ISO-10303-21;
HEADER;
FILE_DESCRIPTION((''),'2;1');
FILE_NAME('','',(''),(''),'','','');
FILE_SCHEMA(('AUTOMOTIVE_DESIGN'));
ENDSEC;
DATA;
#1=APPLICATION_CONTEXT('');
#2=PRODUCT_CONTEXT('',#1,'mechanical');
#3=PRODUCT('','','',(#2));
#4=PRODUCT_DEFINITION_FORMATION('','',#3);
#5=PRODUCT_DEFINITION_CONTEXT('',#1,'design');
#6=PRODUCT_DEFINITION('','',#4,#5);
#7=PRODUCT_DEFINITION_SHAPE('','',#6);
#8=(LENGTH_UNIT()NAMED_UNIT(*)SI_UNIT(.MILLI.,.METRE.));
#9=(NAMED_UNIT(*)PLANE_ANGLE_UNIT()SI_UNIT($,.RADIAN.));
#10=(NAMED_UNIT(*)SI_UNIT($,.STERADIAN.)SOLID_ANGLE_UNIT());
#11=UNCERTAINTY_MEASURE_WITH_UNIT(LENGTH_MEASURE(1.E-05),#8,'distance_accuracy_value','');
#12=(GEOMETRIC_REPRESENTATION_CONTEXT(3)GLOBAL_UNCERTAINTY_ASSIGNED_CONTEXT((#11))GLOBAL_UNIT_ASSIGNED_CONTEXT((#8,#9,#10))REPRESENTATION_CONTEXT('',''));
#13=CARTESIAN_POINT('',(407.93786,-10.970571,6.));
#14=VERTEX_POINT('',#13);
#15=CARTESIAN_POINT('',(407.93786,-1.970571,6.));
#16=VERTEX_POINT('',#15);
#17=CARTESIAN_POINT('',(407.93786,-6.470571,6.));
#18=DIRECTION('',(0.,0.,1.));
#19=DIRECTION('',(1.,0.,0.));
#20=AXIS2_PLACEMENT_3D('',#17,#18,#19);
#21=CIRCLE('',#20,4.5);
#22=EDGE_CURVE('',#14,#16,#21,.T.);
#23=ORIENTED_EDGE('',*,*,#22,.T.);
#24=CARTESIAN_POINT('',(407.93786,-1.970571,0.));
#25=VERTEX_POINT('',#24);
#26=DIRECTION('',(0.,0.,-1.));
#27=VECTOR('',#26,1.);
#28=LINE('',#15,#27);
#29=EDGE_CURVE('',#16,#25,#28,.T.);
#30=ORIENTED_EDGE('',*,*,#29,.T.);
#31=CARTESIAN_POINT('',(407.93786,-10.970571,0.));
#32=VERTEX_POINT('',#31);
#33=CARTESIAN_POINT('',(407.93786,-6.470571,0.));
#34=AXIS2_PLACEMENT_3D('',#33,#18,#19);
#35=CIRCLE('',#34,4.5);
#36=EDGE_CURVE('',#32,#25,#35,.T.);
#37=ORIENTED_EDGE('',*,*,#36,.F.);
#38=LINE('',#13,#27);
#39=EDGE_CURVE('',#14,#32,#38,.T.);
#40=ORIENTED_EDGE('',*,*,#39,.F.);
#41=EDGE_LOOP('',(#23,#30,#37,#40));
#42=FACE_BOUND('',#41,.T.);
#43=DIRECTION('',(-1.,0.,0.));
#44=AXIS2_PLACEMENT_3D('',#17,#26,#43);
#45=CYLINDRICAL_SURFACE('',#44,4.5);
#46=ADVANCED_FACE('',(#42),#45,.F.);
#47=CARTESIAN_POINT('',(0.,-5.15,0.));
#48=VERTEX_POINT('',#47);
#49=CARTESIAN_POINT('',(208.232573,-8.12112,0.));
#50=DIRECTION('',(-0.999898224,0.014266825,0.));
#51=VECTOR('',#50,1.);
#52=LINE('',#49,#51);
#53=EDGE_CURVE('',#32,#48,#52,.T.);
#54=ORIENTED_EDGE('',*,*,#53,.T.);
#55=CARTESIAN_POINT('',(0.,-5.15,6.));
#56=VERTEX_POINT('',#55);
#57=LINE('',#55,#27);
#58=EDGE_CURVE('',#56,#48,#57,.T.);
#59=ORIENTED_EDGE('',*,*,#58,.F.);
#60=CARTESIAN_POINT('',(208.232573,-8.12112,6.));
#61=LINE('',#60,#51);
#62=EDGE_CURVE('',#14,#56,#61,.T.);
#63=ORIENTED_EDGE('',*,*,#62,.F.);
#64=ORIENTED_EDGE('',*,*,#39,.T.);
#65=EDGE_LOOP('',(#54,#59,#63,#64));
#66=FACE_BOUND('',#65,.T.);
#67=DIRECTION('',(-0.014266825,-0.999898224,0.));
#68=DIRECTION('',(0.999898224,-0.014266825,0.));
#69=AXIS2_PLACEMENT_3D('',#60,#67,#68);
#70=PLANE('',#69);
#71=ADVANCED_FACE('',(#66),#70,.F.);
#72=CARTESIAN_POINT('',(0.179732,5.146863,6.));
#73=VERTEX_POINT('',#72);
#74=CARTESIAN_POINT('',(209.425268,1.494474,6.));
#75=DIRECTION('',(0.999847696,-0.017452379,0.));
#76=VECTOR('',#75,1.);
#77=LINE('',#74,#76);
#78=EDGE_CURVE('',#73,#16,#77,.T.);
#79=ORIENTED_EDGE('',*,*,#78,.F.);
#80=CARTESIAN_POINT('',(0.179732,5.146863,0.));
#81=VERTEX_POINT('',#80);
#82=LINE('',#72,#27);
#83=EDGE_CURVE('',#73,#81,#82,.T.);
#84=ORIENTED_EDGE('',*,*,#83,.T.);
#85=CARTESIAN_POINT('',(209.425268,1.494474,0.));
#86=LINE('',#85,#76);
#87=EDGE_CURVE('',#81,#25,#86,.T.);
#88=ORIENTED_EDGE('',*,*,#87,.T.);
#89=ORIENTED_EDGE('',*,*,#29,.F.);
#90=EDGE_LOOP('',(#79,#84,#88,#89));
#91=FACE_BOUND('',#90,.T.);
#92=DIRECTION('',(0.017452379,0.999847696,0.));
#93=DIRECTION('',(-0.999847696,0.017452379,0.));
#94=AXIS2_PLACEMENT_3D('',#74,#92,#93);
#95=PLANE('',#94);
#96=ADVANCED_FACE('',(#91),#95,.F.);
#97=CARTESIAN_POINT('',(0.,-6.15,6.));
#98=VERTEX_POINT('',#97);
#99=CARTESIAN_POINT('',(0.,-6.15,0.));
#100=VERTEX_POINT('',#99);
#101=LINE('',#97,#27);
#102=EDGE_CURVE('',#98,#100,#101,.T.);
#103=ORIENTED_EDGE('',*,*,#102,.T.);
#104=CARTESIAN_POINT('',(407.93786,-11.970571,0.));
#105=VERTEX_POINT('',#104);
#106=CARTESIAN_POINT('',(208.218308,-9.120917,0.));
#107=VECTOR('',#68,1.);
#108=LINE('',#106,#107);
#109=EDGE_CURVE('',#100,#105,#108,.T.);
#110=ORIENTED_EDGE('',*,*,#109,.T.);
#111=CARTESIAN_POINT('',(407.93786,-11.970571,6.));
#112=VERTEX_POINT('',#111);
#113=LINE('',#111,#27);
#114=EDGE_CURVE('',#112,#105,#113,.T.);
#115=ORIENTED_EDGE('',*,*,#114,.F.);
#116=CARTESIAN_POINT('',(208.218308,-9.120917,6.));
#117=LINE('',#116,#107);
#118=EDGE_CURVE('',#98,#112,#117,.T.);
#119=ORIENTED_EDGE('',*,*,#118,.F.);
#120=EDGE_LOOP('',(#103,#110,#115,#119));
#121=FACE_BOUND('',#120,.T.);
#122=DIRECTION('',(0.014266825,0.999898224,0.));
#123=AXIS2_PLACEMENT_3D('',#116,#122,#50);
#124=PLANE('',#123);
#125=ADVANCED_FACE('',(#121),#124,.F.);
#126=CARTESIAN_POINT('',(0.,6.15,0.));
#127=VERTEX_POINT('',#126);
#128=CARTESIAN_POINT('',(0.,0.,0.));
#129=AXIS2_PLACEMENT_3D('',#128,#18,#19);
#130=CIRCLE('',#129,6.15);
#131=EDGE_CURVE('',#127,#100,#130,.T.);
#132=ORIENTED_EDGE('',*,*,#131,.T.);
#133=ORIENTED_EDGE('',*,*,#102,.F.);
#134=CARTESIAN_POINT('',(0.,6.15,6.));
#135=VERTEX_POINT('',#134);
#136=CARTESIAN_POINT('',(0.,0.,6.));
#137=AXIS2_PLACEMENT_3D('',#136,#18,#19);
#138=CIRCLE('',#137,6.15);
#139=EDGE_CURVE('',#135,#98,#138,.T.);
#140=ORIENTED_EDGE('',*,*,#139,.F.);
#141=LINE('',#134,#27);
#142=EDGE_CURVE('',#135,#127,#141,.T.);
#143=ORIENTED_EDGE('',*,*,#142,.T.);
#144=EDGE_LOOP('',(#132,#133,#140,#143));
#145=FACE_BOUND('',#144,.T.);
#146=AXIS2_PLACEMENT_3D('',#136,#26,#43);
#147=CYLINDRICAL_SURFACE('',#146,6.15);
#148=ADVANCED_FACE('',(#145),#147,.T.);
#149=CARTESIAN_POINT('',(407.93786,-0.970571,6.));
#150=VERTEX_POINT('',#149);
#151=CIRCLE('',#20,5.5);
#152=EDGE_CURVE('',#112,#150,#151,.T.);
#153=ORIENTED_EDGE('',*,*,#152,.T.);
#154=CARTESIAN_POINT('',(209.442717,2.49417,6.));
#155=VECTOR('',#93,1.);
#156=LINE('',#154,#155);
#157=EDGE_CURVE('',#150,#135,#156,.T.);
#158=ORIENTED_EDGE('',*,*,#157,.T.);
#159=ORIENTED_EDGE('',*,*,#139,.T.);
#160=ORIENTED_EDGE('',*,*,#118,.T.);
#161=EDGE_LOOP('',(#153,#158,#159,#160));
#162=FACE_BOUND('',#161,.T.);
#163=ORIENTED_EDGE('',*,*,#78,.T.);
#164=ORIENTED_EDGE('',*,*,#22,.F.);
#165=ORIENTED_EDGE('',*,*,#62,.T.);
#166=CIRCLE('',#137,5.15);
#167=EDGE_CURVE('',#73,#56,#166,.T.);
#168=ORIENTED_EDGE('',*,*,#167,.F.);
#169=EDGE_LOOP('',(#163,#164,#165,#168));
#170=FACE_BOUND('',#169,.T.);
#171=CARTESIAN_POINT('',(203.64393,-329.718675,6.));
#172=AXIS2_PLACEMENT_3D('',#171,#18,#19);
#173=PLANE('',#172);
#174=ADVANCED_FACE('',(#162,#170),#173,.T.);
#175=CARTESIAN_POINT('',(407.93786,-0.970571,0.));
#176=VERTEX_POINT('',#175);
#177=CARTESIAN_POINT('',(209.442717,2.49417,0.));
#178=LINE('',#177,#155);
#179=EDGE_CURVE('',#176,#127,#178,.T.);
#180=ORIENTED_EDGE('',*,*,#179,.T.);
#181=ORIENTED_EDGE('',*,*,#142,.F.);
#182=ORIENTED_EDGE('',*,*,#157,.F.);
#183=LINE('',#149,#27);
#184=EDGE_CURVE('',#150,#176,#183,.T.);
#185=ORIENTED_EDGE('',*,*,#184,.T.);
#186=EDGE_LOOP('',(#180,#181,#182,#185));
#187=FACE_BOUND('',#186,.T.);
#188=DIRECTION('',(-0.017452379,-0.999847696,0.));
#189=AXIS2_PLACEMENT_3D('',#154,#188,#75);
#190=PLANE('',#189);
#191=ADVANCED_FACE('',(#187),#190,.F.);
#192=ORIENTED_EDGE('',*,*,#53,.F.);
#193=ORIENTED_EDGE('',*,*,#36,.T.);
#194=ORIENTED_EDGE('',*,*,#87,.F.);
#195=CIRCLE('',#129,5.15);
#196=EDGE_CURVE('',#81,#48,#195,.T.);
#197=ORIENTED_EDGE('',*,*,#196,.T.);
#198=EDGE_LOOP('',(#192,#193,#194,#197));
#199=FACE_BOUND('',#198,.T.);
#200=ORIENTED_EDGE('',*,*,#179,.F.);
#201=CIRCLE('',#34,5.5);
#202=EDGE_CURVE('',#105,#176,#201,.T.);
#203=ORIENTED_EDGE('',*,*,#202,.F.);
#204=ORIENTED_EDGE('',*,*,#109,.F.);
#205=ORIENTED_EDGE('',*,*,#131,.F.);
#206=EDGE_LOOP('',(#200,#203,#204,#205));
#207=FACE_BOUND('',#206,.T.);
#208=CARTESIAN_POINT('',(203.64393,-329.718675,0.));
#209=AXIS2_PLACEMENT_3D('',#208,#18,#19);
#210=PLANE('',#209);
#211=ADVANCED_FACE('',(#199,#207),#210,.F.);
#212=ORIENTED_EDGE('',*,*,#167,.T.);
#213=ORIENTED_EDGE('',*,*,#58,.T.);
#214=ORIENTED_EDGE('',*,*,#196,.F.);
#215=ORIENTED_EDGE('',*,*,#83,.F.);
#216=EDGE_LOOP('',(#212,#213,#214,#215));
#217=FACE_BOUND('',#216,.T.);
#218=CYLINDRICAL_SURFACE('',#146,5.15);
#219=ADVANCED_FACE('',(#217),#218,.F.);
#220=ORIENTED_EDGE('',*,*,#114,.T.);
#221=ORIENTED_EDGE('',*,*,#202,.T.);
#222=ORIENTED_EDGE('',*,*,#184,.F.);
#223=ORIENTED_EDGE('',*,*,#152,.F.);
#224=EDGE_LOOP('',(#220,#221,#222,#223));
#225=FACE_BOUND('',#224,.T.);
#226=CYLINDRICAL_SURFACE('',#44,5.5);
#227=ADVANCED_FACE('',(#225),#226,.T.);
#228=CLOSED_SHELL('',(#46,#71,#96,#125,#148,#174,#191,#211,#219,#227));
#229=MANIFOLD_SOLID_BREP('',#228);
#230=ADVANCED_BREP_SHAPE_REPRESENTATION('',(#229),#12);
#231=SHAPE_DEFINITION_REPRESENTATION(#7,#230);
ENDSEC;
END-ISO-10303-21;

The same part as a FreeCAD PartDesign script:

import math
import FreeCAD as App
import Part
import Sketcher
Q = App.Units.Quantity

doc = App.newDocument("Part")
body = doc.addObject("PartDesign::Body", "Body")

# Sketch on XY plane
sketch1 = doc.addObject("Sketcher::SketchObject", "Sketch")
body.addObject(sketch1)
sketch1.AttachmentSupport = (doc.XY_Plane, [""])
sketch1.MapMode = "FlatFace"
sketch1.addGeometry(Part.ArcOfCircle(Part.Circle(App.Vector(407.93786, -6.470571, 0), App.Vector(0, 0, 1), 5.5), math.radians(-90), math.radians(90)), False)
sketch1.addGeometry(Part.LineSegment(App.Vector(407.93786, -0.970571, 0), App.Vector(0.214632, 6.146254, 0)), False)
sketch1.addGeometry(Part.LineSegment(App.Vector(0.214632, 6.146254, 0), App.Vector(0, 6.15, 0)), False)
sketch1.addGeometry(Part.ArcOfCircle(Part.Circle(App.Vector(0, 0, 0), App.Vector(0, 0, 1), 6.15), math.radians(90), math.radians(270)), False)
sketch1.addGeometry(Part.LineSegment(App.Vector(0, -6.15, 0), App.Vector(407.780941, -11.968332, 0)), False)
sketch1.addGeometry(Part.LineSegment(App.Vector(407.780941, -11.968332, 0), App.Vector(407.93786, -11.970571, 0)), False)
sketch1.addGeometry(Part.LineSegment(App.Vector(407.93786, -10.970571, 0), App.Vector(0, -5.15, 0)), False)
sketch1.addGeometry(Part.ArcOfCircle(Part.Circle(App.Vector(0, 0, 0), App.Vector(0, 0, 1), 5.15), math.radians(90), math.radians(270)), False)
sketch1.addGeometry(Part.ArcOfCircle(Part.Circle(App.Vector(0, 0.000003, 0), App.Vector(0, 0, 1), 5.149997), math.radians(88.000002), math.radians(90.000001)), False)
sketch1.addGeometry(Part.LineSegment(App.Vector(0.179732, 5.146863, 0), App.Vector(407.93786, -1.970571, 0)), False)
sketch1.addGeometry(Part.ArcOfCircle(Part.Circle(App.Vector(407.93786, -6.470571, 0), App.Vector(0, 0, 1), 4.5), math.radians(-90), math.radians(90)), False)
sketch1.addConstraint(Sketcher.Constraint("Coincident", 0, 2, 1, 1))
sketch1.addConstraint(Sketcher.Constraint("Coincident", 1, 2, 2, 1))
sketch1.addConstraint(Sketcher.Constraint("Coincident", 2, 2, 3, 1))
sketch1.addConstraint(Sketcher.Constraint("Coincident", 3, 2, 4, 1))
sketch1.addConstraint(Sketcher.Constraint("Coincident", 4, 2, 5, 1))
sketch1.addConstraint(Sketcher.Constraint("Coincident", 5, 2, 0, 1))
sketch1.addConstraint(Sketcher.Constraint("Coincident", 6, 2, 7, 2))
sketch1.addConstraint(Sketcher.Constraint("Tangent", 7, 1, 8, 2))
sketch1.addConstraint(Sketcher.Constraint("Coincident", 8, 1, 9, 1))
sketch1.addConstraint(Sketcher.Constraint("Coincident", 9, 2, 10, 2))
sketch1.addConstraint(Sketcher.Constraint("Coincident", 10, 1, 6, 1))
sketch1.addConstraint(Sketcher.Constraint("Coincident", 3, 3, -1, 1))
sketch1.addConstraint(Sketcher.Constraint("Coincident", 7, 3, -1, 1))
sketch1.addConstraint(Sketcher.Constraint("Coincident", 10, 3, 0, 3))
sketch1.addConstraint(Sketcher.Constraint("PointOnObject", 2, 2, -2))
sketch1.addConstraint(Sketcher.Constraint("PointOnObject", 3, 2, -2))
sketch1.addConstraint(Sketcher.Constraint("PointOnObject", 6, 2, -2))
sketch1.addConstraint(Sketcher.Constraint("PointOnObject", 7, 1, -2))
sketch1.addConstraint(Sketcher.Constraint("Parallel", 1, 2))
sketch1.addConstraint(Sketcher.Constraint("Parallel", 4, 5))
sketch1.addConstraint(Sketcher.Constraint("Parallel", 4, 6))
sketch1.addConstraint(Sketcher.Constraint("Parallel", 1, 9))
sketch1.addConstraint(Sketcher.Constraint("Vertical", 10, 3, 0, 2))
sketch1.addConstraint(Sketcher.Constraint("Vertical", 0, 2, 5, 2))
sketch1.addConstraint(Sketcher.Constraint("Vertical", 5, 2, 9, 2))
sketch1.addConstraint(Sketcher.Constraint("Vertical", 9, 2, 10, 1))
sketch1.addConstraint(Sketcher.Constraint("Radius", 0, Q("5.5 mm")))
sketch1.addConstraint(Sketcher.Constraint("Radius", 10, Q("4.5 mm")))
sketch1.addConstraint(Sketcher.Constraint("Angle", 1, Q("179.000002 deg")))
sketch1.addConstraint(Sketcher.Constraint("Radius", 3, Q("6.15 mm")))
sketch1.addConstraint(Sketcher.Constraint("Radius", 8, Q("5.149997 mm")))
sketch1.addConstraint(Sketcher.Constraint("DistanceX", 8, 1, 1, 2, Q("0.034899 mm")))
sketch1.addConstraint(Sketcher.Constraint("Distance", 9, Q("407.82024 mm")))
sketch1.addConstraint(Sketcher.Constraint("DistanceX", -1, 1, 4, 2, Q("407.780941 mm")))
pad1 = doc.addObject("PartDesign::Pad", "Pad")
body.addObject(pad1)
pad1.Profile = sketch1
pad1.Length = 6

doc.recompute()
